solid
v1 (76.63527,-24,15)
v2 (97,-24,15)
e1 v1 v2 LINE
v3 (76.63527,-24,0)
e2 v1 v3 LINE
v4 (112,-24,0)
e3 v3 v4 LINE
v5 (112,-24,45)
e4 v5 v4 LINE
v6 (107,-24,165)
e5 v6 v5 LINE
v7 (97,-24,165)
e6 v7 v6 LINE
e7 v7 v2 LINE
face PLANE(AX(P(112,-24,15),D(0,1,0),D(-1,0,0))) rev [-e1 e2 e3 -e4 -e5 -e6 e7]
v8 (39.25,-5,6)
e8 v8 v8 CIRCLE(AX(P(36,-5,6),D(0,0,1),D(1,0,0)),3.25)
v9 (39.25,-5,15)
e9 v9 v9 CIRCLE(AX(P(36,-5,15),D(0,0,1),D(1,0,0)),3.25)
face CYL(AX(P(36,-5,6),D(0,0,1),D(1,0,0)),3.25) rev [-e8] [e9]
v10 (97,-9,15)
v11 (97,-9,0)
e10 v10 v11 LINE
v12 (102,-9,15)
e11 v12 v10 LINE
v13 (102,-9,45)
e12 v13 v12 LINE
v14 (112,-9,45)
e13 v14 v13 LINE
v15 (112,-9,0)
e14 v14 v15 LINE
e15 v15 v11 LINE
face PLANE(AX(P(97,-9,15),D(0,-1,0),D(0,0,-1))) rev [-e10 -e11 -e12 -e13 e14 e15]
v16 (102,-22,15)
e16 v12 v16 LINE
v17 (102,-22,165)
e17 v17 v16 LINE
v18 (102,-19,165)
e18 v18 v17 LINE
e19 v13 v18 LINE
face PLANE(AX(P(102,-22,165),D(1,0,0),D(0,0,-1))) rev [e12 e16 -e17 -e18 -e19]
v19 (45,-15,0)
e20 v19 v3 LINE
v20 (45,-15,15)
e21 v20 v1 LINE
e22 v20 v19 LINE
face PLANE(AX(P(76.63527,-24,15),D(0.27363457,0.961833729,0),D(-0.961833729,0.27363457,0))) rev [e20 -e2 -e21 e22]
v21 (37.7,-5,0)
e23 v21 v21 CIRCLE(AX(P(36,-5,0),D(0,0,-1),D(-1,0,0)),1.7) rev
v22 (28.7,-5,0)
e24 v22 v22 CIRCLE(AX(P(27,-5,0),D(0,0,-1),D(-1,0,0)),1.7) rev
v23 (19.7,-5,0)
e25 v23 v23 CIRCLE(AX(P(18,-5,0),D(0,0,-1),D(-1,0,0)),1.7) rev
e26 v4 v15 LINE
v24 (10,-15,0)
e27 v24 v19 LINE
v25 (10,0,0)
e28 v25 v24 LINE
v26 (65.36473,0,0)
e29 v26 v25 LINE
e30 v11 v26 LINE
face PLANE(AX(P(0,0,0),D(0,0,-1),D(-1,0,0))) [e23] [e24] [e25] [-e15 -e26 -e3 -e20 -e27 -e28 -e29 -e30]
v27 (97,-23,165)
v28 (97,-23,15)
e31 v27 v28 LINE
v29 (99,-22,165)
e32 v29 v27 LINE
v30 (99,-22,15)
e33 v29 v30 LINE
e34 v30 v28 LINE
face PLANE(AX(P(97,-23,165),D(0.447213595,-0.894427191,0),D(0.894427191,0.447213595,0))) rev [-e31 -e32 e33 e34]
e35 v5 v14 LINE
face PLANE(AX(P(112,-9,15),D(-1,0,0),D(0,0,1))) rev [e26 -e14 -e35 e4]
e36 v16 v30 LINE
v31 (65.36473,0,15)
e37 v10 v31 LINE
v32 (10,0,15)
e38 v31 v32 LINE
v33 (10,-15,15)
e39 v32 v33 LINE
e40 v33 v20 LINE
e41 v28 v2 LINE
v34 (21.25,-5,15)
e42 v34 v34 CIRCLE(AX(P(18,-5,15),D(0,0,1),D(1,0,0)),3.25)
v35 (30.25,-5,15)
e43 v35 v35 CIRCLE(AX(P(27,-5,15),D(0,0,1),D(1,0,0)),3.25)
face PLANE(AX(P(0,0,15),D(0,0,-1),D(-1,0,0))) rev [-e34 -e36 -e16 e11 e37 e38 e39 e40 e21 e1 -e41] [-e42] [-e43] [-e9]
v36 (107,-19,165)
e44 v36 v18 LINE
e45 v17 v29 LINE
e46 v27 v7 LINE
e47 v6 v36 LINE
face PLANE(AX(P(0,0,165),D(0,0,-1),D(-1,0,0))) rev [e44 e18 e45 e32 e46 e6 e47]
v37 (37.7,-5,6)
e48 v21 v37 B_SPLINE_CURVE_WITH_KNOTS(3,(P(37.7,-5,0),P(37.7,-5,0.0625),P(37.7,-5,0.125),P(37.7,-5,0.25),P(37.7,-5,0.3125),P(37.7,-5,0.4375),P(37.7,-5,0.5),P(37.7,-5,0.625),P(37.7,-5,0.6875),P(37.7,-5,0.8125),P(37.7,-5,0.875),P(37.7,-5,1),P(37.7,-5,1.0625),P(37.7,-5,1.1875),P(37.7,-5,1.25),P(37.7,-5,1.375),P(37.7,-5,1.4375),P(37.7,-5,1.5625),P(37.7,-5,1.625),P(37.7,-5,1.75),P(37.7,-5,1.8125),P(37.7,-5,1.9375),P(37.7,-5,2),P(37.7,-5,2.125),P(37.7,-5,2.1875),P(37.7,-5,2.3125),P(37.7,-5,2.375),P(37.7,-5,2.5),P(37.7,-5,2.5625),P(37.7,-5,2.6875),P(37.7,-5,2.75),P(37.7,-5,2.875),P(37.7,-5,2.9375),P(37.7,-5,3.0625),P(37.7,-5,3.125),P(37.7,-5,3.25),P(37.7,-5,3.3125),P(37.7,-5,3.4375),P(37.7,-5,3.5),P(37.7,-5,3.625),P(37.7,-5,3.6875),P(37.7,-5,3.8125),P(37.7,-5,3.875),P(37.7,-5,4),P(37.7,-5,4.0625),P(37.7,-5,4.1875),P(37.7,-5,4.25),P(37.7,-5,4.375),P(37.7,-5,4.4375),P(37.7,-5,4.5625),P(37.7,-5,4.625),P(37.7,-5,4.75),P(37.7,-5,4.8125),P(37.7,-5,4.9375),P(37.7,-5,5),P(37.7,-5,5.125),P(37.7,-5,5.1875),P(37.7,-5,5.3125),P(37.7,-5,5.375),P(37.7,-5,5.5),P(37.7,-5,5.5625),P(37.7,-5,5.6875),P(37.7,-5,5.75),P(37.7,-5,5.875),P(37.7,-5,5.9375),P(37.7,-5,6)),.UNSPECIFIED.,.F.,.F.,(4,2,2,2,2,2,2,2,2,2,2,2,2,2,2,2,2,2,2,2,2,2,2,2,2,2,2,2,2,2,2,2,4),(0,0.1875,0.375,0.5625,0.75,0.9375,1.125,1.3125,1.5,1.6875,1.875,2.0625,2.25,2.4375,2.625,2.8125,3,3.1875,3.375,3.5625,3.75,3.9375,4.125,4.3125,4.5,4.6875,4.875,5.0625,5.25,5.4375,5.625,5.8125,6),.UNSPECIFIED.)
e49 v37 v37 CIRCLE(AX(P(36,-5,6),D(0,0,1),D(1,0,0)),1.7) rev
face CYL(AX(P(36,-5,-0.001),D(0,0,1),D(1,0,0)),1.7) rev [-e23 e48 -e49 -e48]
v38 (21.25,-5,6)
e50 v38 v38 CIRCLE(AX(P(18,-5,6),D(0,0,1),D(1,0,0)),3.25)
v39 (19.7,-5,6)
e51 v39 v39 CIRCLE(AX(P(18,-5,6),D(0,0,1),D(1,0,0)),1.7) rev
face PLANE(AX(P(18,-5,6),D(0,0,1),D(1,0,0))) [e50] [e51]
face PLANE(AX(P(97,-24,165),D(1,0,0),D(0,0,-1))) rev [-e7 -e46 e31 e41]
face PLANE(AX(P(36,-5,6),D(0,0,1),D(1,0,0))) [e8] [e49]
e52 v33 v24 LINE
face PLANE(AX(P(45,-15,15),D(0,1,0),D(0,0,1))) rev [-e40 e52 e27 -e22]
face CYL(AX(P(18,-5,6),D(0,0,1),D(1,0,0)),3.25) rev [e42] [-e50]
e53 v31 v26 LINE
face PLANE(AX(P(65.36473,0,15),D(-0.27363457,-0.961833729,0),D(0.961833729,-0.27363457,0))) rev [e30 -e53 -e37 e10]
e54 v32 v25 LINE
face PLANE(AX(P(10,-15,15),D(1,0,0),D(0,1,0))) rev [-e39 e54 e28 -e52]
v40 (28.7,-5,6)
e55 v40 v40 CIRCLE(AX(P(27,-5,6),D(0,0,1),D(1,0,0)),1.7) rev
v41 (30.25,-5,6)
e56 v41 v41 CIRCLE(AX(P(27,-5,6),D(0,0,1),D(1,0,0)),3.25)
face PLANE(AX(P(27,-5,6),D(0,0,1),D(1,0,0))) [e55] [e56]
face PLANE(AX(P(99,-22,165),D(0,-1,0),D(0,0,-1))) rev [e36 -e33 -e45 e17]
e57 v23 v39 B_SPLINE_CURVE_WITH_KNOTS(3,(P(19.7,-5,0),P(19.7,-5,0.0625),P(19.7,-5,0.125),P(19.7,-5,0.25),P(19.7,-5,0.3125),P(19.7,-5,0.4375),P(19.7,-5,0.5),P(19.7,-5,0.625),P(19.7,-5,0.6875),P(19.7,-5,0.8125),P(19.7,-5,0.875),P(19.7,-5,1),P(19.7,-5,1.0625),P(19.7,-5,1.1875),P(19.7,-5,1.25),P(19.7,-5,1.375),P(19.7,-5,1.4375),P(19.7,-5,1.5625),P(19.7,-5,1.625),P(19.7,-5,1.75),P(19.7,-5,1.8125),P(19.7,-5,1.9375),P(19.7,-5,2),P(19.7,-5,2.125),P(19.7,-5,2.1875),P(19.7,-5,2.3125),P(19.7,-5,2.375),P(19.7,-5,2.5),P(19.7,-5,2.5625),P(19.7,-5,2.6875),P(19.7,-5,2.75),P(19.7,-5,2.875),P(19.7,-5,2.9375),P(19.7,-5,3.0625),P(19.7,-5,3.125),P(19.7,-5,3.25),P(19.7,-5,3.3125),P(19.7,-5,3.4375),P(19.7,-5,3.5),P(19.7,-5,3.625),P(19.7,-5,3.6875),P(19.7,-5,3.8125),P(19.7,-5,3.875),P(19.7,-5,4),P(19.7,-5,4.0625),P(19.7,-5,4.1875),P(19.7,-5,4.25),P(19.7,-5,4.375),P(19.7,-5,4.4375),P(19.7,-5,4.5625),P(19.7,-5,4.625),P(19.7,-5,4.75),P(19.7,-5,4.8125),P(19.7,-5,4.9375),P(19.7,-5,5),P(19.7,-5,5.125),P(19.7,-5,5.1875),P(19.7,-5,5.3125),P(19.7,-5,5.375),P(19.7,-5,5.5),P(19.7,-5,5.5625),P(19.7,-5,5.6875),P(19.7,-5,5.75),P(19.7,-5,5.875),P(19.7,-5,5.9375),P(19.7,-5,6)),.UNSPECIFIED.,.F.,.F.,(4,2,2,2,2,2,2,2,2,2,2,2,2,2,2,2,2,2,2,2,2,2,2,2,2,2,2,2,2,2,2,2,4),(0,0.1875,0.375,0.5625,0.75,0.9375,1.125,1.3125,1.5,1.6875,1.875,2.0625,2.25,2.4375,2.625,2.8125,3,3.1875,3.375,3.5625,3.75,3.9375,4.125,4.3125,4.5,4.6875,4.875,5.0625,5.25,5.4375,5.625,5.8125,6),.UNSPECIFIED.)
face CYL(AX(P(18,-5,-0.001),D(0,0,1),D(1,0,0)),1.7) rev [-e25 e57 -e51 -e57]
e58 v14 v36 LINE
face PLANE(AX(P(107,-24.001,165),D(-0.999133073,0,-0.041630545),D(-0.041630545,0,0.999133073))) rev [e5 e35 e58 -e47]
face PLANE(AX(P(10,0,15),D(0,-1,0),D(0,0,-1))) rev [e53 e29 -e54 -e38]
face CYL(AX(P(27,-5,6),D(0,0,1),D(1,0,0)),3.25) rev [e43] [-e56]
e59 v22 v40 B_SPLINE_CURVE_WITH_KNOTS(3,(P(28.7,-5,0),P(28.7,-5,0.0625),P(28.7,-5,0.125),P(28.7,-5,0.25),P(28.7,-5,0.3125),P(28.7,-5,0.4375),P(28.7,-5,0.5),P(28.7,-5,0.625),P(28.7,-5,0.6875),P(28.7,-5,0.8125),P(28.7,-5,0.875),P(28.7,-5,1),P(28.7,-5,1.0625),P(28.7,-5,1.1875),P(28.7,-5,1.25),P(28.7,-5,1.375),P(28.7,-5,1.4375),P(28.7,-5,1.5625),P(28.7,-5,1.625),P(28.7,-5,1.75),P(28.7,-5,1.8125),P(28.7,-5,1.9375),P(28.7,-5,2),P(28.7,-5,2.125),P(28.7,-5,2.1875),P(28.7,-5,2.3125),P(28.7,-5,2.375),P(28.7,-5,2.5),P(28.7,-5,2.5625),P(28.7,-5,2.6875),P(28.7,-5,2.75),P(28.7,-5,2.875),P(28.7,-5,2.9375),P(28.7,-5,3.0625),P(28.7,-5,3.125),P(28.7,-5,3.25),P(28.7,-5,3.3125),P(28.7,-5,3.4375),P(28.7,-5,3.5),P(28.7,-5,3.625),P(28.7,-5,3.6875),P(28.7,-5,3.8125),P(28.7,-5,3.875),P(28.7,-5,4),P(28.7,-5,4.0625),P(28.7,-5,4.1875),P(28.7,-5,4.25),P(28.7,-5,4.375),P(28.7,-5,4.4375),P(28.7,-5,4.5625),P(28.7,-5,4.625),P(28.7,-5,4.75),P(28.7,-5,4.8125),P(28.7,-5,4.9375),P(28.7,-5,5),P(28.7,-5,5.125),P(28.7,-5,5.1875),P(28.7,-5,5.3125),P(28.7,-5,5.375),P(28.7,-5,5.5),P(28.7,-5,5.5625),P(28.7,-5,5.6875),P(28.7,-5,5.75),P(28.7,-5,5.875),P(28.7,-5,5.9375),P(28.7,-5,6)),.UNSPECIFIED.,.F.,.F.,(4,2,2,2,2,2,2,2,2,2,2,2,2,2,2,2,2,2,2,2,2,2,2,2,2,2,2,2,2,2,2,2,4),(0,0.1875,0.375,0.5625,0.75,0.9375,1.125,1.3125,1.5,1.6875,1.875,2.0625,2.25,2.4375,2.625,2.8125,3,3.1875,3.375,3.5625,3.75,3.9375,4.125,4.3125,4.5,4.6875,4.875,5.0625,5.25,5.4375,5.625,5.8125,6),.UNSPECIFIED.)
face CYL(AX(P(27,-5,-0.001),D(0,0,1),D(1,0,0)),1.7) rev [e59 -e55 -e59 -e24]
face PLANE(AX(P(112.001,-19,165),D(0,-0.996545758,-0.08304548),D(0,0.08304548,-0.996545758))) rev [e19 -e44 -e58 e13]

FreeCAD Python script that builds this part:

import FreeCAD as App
import Part
import Sketcher

doc = App.newDocument("Part")
body = doc.addObject("PartDesign::Body", "Body")

# Sketch on XY plane
sketch1 = body.newObject("Sketcher::SketchObject", "Sketch")
sketch1.AttachmentSupport = (doc.getObject("XY_Plane"), [""])
sketch1.MapMode = "FlatFace"
sketch1.addGeometry([
    Part.LineSegment(App.Vector(65, 0, 0), App.Vector(10, 0, 0)),  # 0
    Part.LineSegment(App.Vector(10, 0, 0), App.Vector(10, -15, 0)),  # 1
    Part.LineSegment(App.Vector(10, -15, 0), App.Vector(45, -15, 0)),  # 2
    Part.LineSegment(App.Vector(45, -15, 0), App.Vector(77, -24, 0)),  # 3
    Part.LineSegment(App.Vector(77, -24, 0), App.Vector(112, -24, 0)),  # 4
    Part.LineSegment(App.Vector(112, -24, 0), App.Vector(112, -9, 0)),  # 5
    Part.LineSegment(App.Vector(112, -9, 0), App.Vector(97, -9, 0)),  # 6
    Part.LineSegment(App.Vector(97, -9, 0), App.Vector(65, 0, 0)),  # 7
], False)
sketch1.addConstraint([
    Sketcher.Constraint("Coincident", 0, 2, 1, 1),
    Sketcher.Constraint("Coincident", 1, 2, 2, 1),
    Sketcher.Constraint("Coincident", 2, 2, 3, 1),
    Sketcher.Constraint("Coincident", 3, 2, 4, 1),
    Sketcher.Constraint("Coincident", 4, 2, 5, 1),
    Sketcher.Constraint("Coincident", 5, 2, 6, 1),
    Sketcher.Constraint("Coincident", 6, 2, 7, 1),
    Sketcher.Constraint("Coincident", 7, 2, 0, 1),
    Sketcher.Constraint("Horizontal", 0),
    Sketcher.Constraint("Vertical", 1),
    Sketcher.Constraint("Horizontal", 2),
    Sketcher.Constraint("Horizontal", 4),
    Sketcher.Constraint("Vertical", 5),
    Sketcher.Constraint("Horizontal", 6),
    Sketcher.Constraint("PointOnObject", 0, 2, -1),
    Sketcher.Constraint("Parallel", 3, 7),
    Sketcher.Constraint("Equal", 6, 1),
    Sketcher.Constraint("Equal", 1, 5),
    Sketcher.Constraint("DistanceX", 2, 1, 2, 2, 35.0),
    Sketcher.Constraint("DistanceX", 6, 2, 6, 1, 15.0),
    Sketcher.Constraint("DistanceX", -1, 1, 0, 2, 10.0),
    Sketcher.Constraint("DistanceY", 3, 2, -1, 1, 24.0),
    Sketcher.Constraint("DistanceX", -1, 1, 4, 2, 112.0),
    Sketcher.Constraint("DistanceX", 0, 2, 0, 1, 55.36473),
])
pad1 = body.newObject("PartDesign::Pad", "Pad")
pad1.Profile = sketch1
pad1.Length = 15

# Sketch on XY plane
sketch2 = body.newObject("Sketcher::SketchObject", "Sketch001")
sketch2.AttachmentSupport = (doc.getObject("XY_Plane"), [""])
sketch2.MapMode = "FlatFace"
sketch2.AttachmentOffset = App.Placement(App.Vector(0, 0, 15), App.Rotation())
sketch2.addGeometry([
    Part.LineSegment(App.Vector(112, -24, 0), App.Vector(112, -9, 0)),  # 0
    Part.LineSegment(App.Vector(112, -9, 0), App.Vector(102, -9, 0)),  # 1
    Part.LineSegment(App.Vector(102, -9, 0), App.Vector(102, -22, 0)),  # 2
    Part.LineSegment(App.Vector(102, -22, 0), App.Vector(99, -22, 0)),  # 3
    Part.LineSegment(App.Vector(99, -22, 0), App.Vector(97, -23, 0)),  # 4
    Part.LineSegment(App.Vector(97, -23, 0), App.Vector(97, -24, 0)),  # 5
    Part.LineSegment(App.Vector(97, -24, 0), App.Vector(112, -24, 0)),  # 6
], False)
sketch2.addConstraint([
    Sketcher.Constraint("Coincident", 0, 2, 1, 1),
    Sketcher.Constraint("Coincident", 1, 2, 2, 1),
    Sketcher.Constraint("Coincident", 2, 2, 3, 1),
    Sketcher.Constraint("Coincident", 3, 2, 4, 1),
    Sketcher.Constraint("Coincident", 4, 2, 5, 1),
    Sketcher.Constraint("Coincident", 5, 2, 6, 1),
    Sketcher.Constraint("Coincident", 6, 2, 0, 1),
    Sketcher.Constraint("Vertical", 0),
    Sketcher.Constraint("Horizontal", 1),
    Sketcher.Constraint("Vertical", 2),
    Sketcher.Constraint("Horizontal", 3),
    Sketcher.Constraint("Vertical", 5),
    Sketcher.Constraint("Horizontal", 6),
    Sketcher.Constraint("Equal", 6, 0),
    Sketcher.Constraint("DistanceX", 1, 2, 1, 1, 10.0),
    Sketcher.Constraint("DistanceX", 3, 2, 3, 1, 3.0),
    Sketcher.Constraint("DistanceX", 6, 1, 6, 2, 15.0),
    Sketcher.Constraint("DistanceY", 2, 2, 2, 1, 13.0),
    Sketcher.Constraint("DistanceY", 5, 2, 5, 1, 1.0),
    Sketcher.Constraint("DistanceX", -1, 1, 0, 2, 112.0),
    Sketcher.Constraint("DistanceY", 0, 2, -1, 1, 9.0),
])
pad2 = body.newObject("PartDesign::Pad", "Pad001")
pad2.Profile = sketch2
pad2.Length = 150

# Sketch on YZ plane
sketch3 = body.newObject("Sketcher::SketchObject", "Sketch002")
sketch3.AttachmentSupport = (doc.getObject("YZ_Plane"), [""])
sketch3.MapMode = "FlatFace"
sketch3.AttachmentOffset = App.Placement(App.Vector(0, 0, 102), App.Rotation())
sketch3.addGeometry([
    Part.LineSegment(App.Vector(-9, 45, 0), App.Vector(-19, 165, 0)),
    Part.LineSegment(App.Vector(-19, 165, 0), App.Vector(-9, 165, 0)),
    Part.LineSegment(App.Vector(-9, 165, 0), App.Vector(-9, 45, 0)),
], False)
sketch3.addConstraint([
    Sketcher.Constraint("Coincident", 0, 2, 1, 1),
    Sketcher.Constraint("Coincident", 1, 2, 2, 1),
    Sketcher.Constraint("Coincident", 2, 2, 0, 1),
    Sketcher.Constraint("Horizontal", 1),
    Sketcher.Constraint("Vertical", 2),
    Sketcher.Constraint("DistanceX", 1, 1, 1, 2, 10.0),
    Sketcher.Constraint("DistanceY", 2, 2, 2, 1, 120.0),
    Sketcher.Constraint("DistanceX", 0, 2, -1, 1, 19.0),
    Sketcher.Constraint("DistanceY", -1, 1, 0, 2, 165.0),
])
pocket1 = body.newObject("PartDesign::Pocket", "Pocket")
pocket1.Profile = sketch3
pocket1.Type = "UpToFirst"
pocket1.Reversed = True

# Sketch on XY plane
sketch4 = body.newObject("Sketcher::SketchObject", "Sketch003")
sketch4.AttachmentSupport = (doc.getObject("XY_Plane"), [""])
sketch4.MapMode = "FlatFace"
sketch4.AttachmentOffset = App.Placement(App.Vector(0, 0, 15), App.Rotation())
sketch4.addGeometry(Part.Circle(App.Vector(36, -5, 0), App.Vector(0, 0, 1), 1.7), False)
sketch4.addConstraint([
    Sketcher.Constraint("Diameter", 0, 3.4),
    Sketcher.Constraint("DistanceX", -1, 1, 0, 3, 36.0),
    Sketcher.Constraint("DistanceY", 0, 3, -1, 1, 5.0),
])
pocket2 = body.newObject("PartDesign::Pocket", "Pocket001")
pocket2.Profile = sketch4
pocket2.Type = "UpToFirst"

# Sketch on XY plane
sketch5 = body.newObject("Sketcher::SketchObject", "Sketch004")
sketch5.AttachmentSupport = (doc.getObject("XY_Plane"), [""])
sketch5.MapMode = "FlatFace"
sketch5.AttachmentOffset = App.Placement(App.Vector(0, 0, 15), App.Rotation())
sketch5.addGeometry(Part.Circle(App.Vector(27, -5, 0), App.Vector(0, 0, 1), 1.7), False)
sketch5.addConstraint([
    Sketcher.Constraint("Diameter", 0, 3.4),
    Sketcher.Constraint("DistanceX", -1, 1, 0, 3, 27.0),
    Sketcher.Constraint("DistanceY", 0, 3, -1, 1, 5.0),
])
pocket3 = body.newObject("PartDesign::Pocket", "Pocket002")
pocket3.Profile = sketch5
pocket3.Type = "UpToFirst"

# Sketch on XY plane
sketch6 = body.newObject("Sketcher::SketchObject", "Sketch005")
sketch6.AttachmentSupport = (doc.getObject("XY_Plane"), [""])
sketch6.MapMode = "FlatFace"
sketch6.AttachmentOffset = App.Placement(App.Vector(0, 0, 15), App.Rotation())
sketch6.addGeometry(Part.Circle(App.Vector(18, -5, 0), App.Vector(0, 0, 1), 1.7), False)
sketch6.addConstraint([
    Sketcher.Constraint("Diameter", 0, 3.4),
    Sketcher.Constraint("DistanceX", -1, 1, 0, 3, 18.0),
    Sketcher.Constraint("DistanceY", 0, 3, -1, 1, 5.0),
])
pocket4 = body.newObject("PartDesign::Pocket", "Pocket003")
pocket4.Profile = sketch6
pocket4.Type = "UpToFirst"

# Sketch on XY plane
sketch7 = body.newObject("Sketcher::SketchObject", "Sketch006")
sketch7.AttachmentSupport = (doc.getObject("XY_Plane"), [""])
sketch7.MapMode = "FlatFace"
sketch7.AttachmentOffset = App.Placement(App.Vector(0, 0, 15), App.Rotation())
sketch7.addGeometry([
    Part.Circle(App.Vector(18, -5, 0), App.Vector(0, 0, 1), 3.2),
    Part.Circle(App.Vector(27, -5, 0), App.Vector(0, 0, 1), 3.2),
    Part.Circle(App.Vector(36, -5, 0), App.Vector(0, 0, 1), 3.2),
], False)
sketch7.addConstraint([
    Sketcher.Constraint("Equal", 0, 1),
    Sketcher.Constraint("Equal", 1, 2),
    Sketcher.Constraint("Horizontal", 0, 3, 1, 3),
    Sketcher.Constraint("Horizontal", 1, 3, 2, 3),
    Sketcher.Constraint("Diameter", 0, 6.5),
    Sketcher.Constraint("DistanceX", -1, 1, 0, 3, 18.0),
    Sketcher.Constraint("DistanceY", 0, 3, -1, 1, 5.0),
    Sketcher.Constraint("DistanceX", -1, 1, 1, 3, 27.0),
    Sketcher.Constraint("DistanceX", -1, 1, 2, 3, 36.0),
])
pocket5 = body.newObject("PartDesign::Pocket", "Pocket004")
pocket5.Profile = sketch7
pocket5.Length = 9

# Sketch on XZ plane
sketch8 = body.newObject("Sketcher::SketchObject", "Sketch007")
sketch8.AttachmentSupport = (doc.getObject("XZ_Plane"), [""])
sketch8.MapMode = "FlatFace"
sketch8.AttachmentOffset = App.Placement(App.Vector(0, 0, 9), App.Rotation())
sketch8.addGeometry([
    Part.LineSegment(App.Vector(107, 165, 0), App.Vector(112, 165, 0)),
    Part.LineSegment(App.Vector(112, 165, 0), App.Vector(112, 45, 0)),
    Part.LineSegment(App.Vector(112, 45, 0), App.Vector(107, 165, 0)),
], False)
sketch8.addConstraint([
    Sketcher.Constraint("Coincident", 0, 2, 1, 1),
    Sketcher.Constraint("Coincident", 1, 2, 2, 1),
    Sketcher.Constraint("Coincident", 2, 2, 0, 1),
    Sketcher.Constraint("Horizontal", 0),
    Sketcher.Constraint("Vertical", 1),
    Sketcher.Constraint("DistanceX", 0, 1, 0, 2, 5.0),
    Sketcher.Constraint("DistanceY", 1, 2, 1, 1, 120.0),
    Sketcher.Constraint("DistanceX", -1, 1, 0, 2, 112.0),
    Sketcher.Constraint("DistanceY", -1, 1, 0, 2, 165.0),
])
pocket6 = body.newObject("PartDesign::Pocket", "Pocket005")
pocket6.Profile = sketch8
pocket6.Length = 15
pocket6.Reversed = True

doc.recompute()
